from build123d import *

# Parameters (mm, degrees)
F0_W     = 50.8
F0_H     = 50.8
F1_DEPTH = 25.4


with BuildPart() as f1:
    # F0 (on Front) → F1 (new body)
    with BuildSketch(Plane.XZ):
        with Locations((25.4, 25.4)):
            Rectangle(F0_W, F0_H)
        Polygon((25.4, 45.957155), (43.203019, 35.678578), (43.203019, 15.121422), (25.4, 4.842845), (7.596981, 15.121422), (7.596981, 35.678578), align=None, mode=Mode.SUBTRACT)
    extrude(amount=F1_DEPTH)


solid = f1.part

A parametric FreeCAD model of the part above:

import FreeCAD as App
import Part
import Sketcher
from FreeCAD import Vector
Q = App.Units.Quantity

doc = App.newDocument("Part")
params = doc.addObject("Spreadsheet::Sheet", "Params")
for row, (alias, value) in enumerate([
    ("sketch1_width", "2 in"),
    ("pad1_length", "1 in"),
], start=1):
    params.set(f"A{row}", alias)
    params.set(f"B{row}", "=" + value)
    params.setAlias(f"B{row}", alias)

body = doc.addObject("PartDesign::Body", "Body")

# Sketch on XZ plane
sketch1 = doc.addObject("Sketcher::SketchObject", "Sketch")
body.addObject(sketch1)
sketch1.AttachmentSupport = (doc.XZ_Plane, [""])
sketch1.MapMode = "FlatFace"
sketch1.addGeometry(Part.LineSegment(Vector(0, 50.8, 0), Vector(0, 0, 0)), False)
sketch1.addGeometry(Part.LineSegment(Vector(0, 0, 0), Vector(50.8, 0, 0)), False)
sketch1.addGeometry(Part.LineSegment(Vector(50.8, 0, 0), Vector(50.8, 50.8, 0)), False)
sketch1.addGeometry(Part.LineSegment(Vector(50.8, 50.8, 0), Vector(0, 50.8, 0)), False)
sketch1.addGeometry(Part.LineSegment(Vector(7.596981, 35.678578, 0), Vector(25.4, 45.957155, 0)), False)
sketch1.addGeometry(Part.LineSegment(Vector(25.4, 45.957155, 0), Vector(43.203019, 35.678578, 0)), False)
sketch1.addGeometry(Part.LineSegment(Vector(43.203019, 35.678578, 0), Vector(43.203019, 15.121422, 0)), False)
sketch1.addGeometry(Part.LineSegment(Vector(43.203019, 15.121422, 0), Vector(25.4, 4.842845, 0)), False)
sketch1.addGeometry(Part.LineSegment(Vector(25.4, 4.842845, 0), Vector(7.596981, 15.121422, 0)), False)
sketch1.addGeometry(Part.LineSegment(Vector(7.596981, 15.121422, 0), Vector(7.596981, 35.678578, 0)), False)
sketch1.addConstraint(Sketcher.Constraint("Coincident", 0, 2, 1, 1))
sketch1.addConstraint(Sketcher.Constraint("Coincident", 1, 2, 2, 1))
sketch1.addConstraint(Sketcher.Constraint("Coincident", 2, 2, 3, 1))
sketch1.addConstraint(Sketcher.Constraint("Coincident", 3, 2, 0, 1))
sketch1.addConstraint(Sketcher.Constraint("Coincident", 4, 2, 5, 1))
sketch1.addConstraint(Sketcher.Constraint("Coincident", 5, 2, 6, 1))
sketch1.addConstraint(Sketcher.Constraint("Coincident", 6, 2, 7, 1))
sketch1.addConstraint(Sketcher.Constraint("Coincident", 7, 2, 8, 1))
sketch1.addConstraint(Sketcher.Constraint("Coincident", 8, 2, 9, 1))
sketch1.addConstraint(Sketcher.Constraint("Coincident", 9, 2, 4, 1))
sketch1.addConstraint(Sketcher.Constraint("Vertical", 0))
sketch1.addConstraint(Sketcher.Constraint("Horizontal", 1))
sketch1.addConstraint(Sketcher.Constraint("Vertical", 2))
sketch1.addConstraint(Sketcher.Constraint("Horizontal", 3))
sketch1.addConstraint(Sketcher.Constraint("Vertical", 6))
sketch1.addConstraint(Sketcher.Constraint("Vertical", 9))
sketch1.addConstraint(Sketcher.Constraint("Coincident", 0, 2, -1, 1))
sketch1.addConstraint(Sketcher.Constraint("Parallel", 4, 7))
sketch1.addConstraint(Sketcher.Constraint("Parallel", 5, 8))
sketch1.addConstraint(Sketcher.Constraint("Horizontal", 6, 2, 8, 2))
sketch1.addConstraint(Sketcher.Constraint("Horizontal", 5, 2, 9, 2))
sketch1.addConstraint(Sketcher.Constraint("Vertical", 4, 2, 7, 2))
sketch1.addConstraint(Sketcher.Constraint("Equal", 3, 0))
sketch1.addConstraint(Sketcher.Constraint("DistanceX", 1, 1, 1, 2, Q("2 in")))
sketch1.addConstraint(Sketcher.Constraint("DistanceX", -1, 1, 4, 2, Q("1 in")))
sketch1.addConstraint(Sketcher.Constraint("Angle", 4, Q("29.999998 deg")))
sketch1.addConstraint(Sketcher.Constraint("DistanceY", 6, 2, 6, 1, Q("20.557156 mm")))
sketch1.addConstraint(Sketcher.Constraint("DistanceX", -1, 1, 5, 2, Q("43.203019 mm")))
sketch1.addConstraint(Sketcher.Constraint("DistanceY", -1, 1, 5, 2, Q("35.678578 mm")))
sketch1.setExpression("Constraints[23]", "Params.sketch1_width")
pad1 = doc.addObject("PartDesign::Pad", "Pad")
body.addObject(pad1)
pad1.Profile = sketch1
pad1.setExpression("Length", "Params.pad1_length")

doc.recompute()
